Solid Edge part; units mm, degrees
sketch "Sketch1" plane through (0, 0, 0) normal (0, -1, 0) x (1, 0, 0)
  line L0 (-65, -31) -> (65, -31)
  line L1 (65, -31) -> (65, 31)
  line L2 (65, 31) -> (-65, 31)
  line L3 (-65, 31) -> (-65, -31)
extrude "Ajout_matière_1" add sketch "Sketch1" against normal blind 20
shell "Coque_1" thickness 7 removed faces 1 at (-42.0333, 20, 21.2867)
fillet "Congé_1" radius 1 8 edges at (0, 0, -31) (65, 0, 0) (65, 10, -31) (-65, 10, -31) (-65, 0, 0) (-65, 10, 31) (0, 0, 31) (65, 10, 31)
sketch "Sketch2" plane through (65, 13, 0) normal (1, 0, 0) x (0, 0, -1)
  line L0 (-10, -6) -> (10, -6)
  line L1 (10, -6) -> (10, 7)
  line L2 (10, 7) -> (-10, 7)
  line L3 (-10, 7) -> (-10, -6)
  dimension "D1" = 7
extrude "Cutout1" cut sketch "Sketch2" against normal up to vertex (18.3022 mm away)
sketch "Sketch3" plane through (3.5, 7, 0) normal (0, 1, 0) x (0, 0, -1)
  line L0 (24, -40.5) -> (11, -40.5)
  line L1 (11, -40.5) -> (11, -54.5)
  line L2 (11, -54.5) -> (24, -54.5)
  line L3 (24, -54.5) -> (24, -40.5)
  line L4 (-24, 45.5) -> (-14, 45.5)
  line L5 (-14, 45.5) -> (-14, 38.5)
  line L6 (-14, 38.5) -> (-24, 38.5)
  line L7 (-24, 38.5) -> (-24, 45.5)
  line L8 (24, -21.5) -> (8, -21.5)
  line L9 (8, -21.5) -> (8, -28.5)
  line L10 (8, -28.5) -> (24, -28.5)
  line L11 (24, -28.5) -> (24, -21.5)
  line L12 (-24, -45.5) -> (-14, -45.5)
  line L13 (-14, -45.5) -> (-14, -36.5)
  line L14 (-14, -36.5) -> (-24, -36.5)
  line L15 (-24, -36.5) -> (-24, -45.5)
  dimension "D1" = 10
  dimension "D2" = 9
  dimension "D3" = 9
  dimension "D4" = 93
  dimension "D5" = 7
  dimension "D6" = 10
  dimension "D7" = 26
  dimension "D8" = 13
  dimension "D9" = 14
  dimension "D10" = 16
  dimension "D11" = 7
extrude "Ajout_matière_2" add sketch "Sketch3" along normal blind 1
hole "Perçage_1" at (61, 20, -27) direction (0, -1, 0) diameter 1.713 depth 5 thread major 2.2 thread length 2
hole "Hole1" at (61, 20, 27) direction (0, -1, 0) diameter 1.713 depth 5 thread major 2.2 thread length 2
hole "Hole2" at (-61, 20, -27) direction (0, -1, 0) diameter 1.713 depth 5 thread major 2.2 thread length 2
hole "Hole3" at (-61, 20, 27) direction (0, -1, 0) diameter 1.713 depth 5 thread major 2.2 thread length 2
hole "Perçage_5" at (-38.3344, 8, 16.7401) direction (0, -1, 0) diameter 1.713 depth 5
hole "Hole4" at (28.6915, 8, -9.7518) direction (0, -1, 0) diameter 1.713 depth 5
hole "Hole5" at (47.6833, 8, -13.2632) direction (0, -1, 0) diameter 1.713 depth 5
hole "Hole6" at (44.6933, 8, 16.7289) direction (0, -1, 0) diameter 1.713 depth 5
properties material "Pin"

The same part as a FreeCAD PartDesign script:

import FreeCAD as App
import Part
import Sketcher
Q = App.Units.Quantity


def edges_at(feature, points):
    """Names of the edges that pass closest to the given points."""
    edges = feature.Shape.Edges
    near = lambda p: min(range(len(edges)), key=lambda i: edges[i].distToShape(Part.Vertex(*p))[0])
    return sorted({f"Edge{near(p) + 1}" for p in points})


def faces_at(feature, points):
    """Names of the faces that lie closest to the given points."""
    faces = feature.Shape.Faces
    near = lambda p: min(range(len(faces)), key=lambda i: faces[i].distToShape(Part.Vertex(*p))[0])
    return sorted({f"Face{near(p) + 1}" for p in points})

doc = App.newDocument("Part")
body = doc.addObject("PartDesign::Body", "Body")

# Sketch on XZ plane
sketch1 = body.newObject("Sketcher::SketchObject", "Sketch")
sketch1.AttachmentSupport = (doc.getObject("XZ_Plane"), [""])
sketch1.MapMode = "FlatFace"
sketch1.addGeometry(Part.LineSegment(App.Vector(-65, 31, 0), App.Vector(-65, -31, 0)), False)
sketch1.addGeometry(Part.LineSegment(App.Vector(-65, -31, 0), App.Vector(65, -31, 0)), False)
sketch1.addGeometry(Part.LineSegment(App.Vector(65, -31, 0), App.Vector(65, 31, 0)), False)
sketch1.addGeometry(Part.LineSegment(App.Vector(65, 31, 0), App.Vector(-65, 31, 0)), False)
sketch1.addConstraint(Sketcher.Constraint("Coincident", 0, 2, 1, 1))
sketch1.addConstraint(Sketcher.Constraint("Coincident", 1, 2, 2, 1))
sketch1.addConstraint(Sketcher.Constraint("Coincident", 2, 2, 3, 1))
sketch1.addConstraint(Sketcher.Constraint("Coincident", 3, 2, 0, 1))
sketch1.addConstraint(Sketcher.Constraint("Vertical", 0))
sketch1.addConstraint(Sketcher.Constraint("Horizontal", 1))
sketch1.addConstraint(Sketcher.Constraint("Vertical", 2))
sketch1.addConstraint(Sketcher.Constraint("Horizontal", 3))
sketch1.addConstraint(Sketcher.Constraint("Symmetric", 0, 2, 2, 2, -1, 1))
sketch1.addConstraint(Sketcher.Constraint("DistanceX", 1, 1, 1, 2, Q("130 mm")))
sketch1.addConstraint(Sketcher.Constraint("DistanceY", 0, 2, 0, 1, Q("62 mm")))
pad1 = body.newObject("PartDesign::Pad", "Pad")
pad1.Profile = sketch1
pad1.Length = 20
pad1.Reversed = True
doc.recompute()

thickness = body.newObject("PartDesign::Thickness", "Thickness")
thickness.Base = (pad1, faces_at(pad1, [(-42.033, 20, 21.287)]))
thickness.Value = 7
thickness.Reversed = True
thickness.Join = "Intersection"
doc.recompute()

fillet = body.newObject("PartDesign::Fillet", "Fillet")
fillet.Base = (thickness, edges_at(thickness, [
    (0, 0, -31),
    (65, 0, 0),
    (65, 10, -31),
    (-65, 10, -31),
    (-65, 0, 0),
    (-65, 10, 31),
    (0, 0, 31),
    (65, 10, 31),
]))
fillet.Radius = 1

# Sketch on YZ plane
sketch2 = body.newObject("Sketcher::SketchObject", "Sketch001")
sketch2.AttachmentSupport = (doc.getObject("YZ_Plane"), [""])
sketch2.MapMode = "FlatFace"
sketch2.AttachmentOffset = App.Placement(App.Vector(0, 0, 65), App.Rotation())
sketch2.addGeometry(Part.LineSegment(App.Vector(20, 10, 0), App.Vector(7, 10, 0)), False)
sketch2.addGeometry(Part.LineSegment(App.Vector(7, 10, 0), App.Vector(7, -10, 0)), False)
sketch2.addGeometry(Part.LineSegment(App.Vector(7, -10, 0), App.Vector(20, -10, 0)), False)
sketch2.addGeometry(Part.LineSegment(App.Vector(20, -10, 0), App.Vector(20, 10, 0)), False)
sketch2.addConstraint(Sketcher.Constraint("Coincident", 0, 2, 1, 1))
sketch2.addConstraint(Sketcher.Constraint("Coincident", 1, 2, 2, 1))
sketch2.addConstraint(Sketcher.Constraint("Coincident", 2, 2, 3, 1))
sketch2.addConstraint(Sketcher.Constraint("Coincident", 3, 2, 0, 1))
sketch2.addConstraint(Sketcher.Constraint("Horizontal", 0))
sketch2.addConstraint(Sketcher.Constraint("Vertical", 1))
sketch2.addConstraint(Sketcher.Constraint("Horizontal", 2))
sketch2.addConstraint(Sketcher.Constraint("Vertical", 3))
sketch2.addConstraint(Sketcher.Constraint("DistanceX", 0, 2, 0, 1, Q("13 mm")))
sketch2.addConstraint(Sketcher.Constraint("DistanceY", 1, 2, 1, 1, Q("20 mm")))
sketch2.addConstraint(Sketcher.Constraint("DistanceX", -1, 1, 0, 2, Q("7 mm")))
sketch2.addConstraint(Sketcher.Constraint("DistanceY", -1, 1, 0, 2, Q("10 mm")))
pocket1 = body.newObject("PartDesign::Pocket", "Pocket")
pocket1.Profile = sketch2
pocket1.Length = 18.3022

# Sketch on XZ plane
sketch3 = body.newObject("Sketcher::SketchObject", "Sketch002")
sketch3.AttachmentSupport = (doc.getObject("XZ_Plane"), [""])
sketch3.MapMode = "FlatFace"
sketch3.AttachmentOffset = App.Placement(App.Vector(0, 0, -7), App.Rotation())
sketch3.addGeometry(Part.LineSegment(App.Vector(58, -24, 0), App.Vector(44, -24, 0)), False)
sketch3.addGeometry(Part.LineSegment(App.Vector(44, -24, 0), App.Vector(44, -11, 0)), False)
sketch3.addGeometry(Part.LineSegment(App.Vector(44, -11, 0), App.Vector(58, -11, 0)), False)
sketch3.addGeometry(Part.LineSegment(App.Vector(58, -11, 0), App.Vector(58, -24, 0)), False)
sketch3.addGeometry(Part.LineSegment(App.Vector(-42, 14, 0), App.Vector(-42, 24, 0)), False)
sketch3.addGeometry(Part.LineSegment(App.Vector(-42, 24, 0), App.Vector(-35, 24, 0)), False)
sketch3.addGeometry(Part.LineSegment(App.Vector(-35, 24, 0), App.Vector(-35, 14, 0)), False)
sketch3.addGeometry(Part.LineSegment(App.Vector(-35, 14, 0), App.Vector(-42, 14, 0)), False)
sketch3.addGeometry(Part.LineSegment(App.Vector(32, -24, 0), App.Vector(25, -24, 0)), False)
sketch3.addGeometry(Part.LineSegment(App.Vector(25, -24, 0), App.Vector(25, -8, 0)), False)
sketch3.addGeometry(Part.LineSegment(App.Vector(25, -8, 0), App.Vector(32, -8, 0)), False)
sketch3.addGeometry(Part.LineSegment(App.Vector(32, -8, 0), App.Vector(32, -24, 0)), False)
sketch3.addGeometry(Part.LineSegment(App.Vector(40, 24, 0), App.Vector(49, 24, 0)), False)
sketch3.addGeometry(Part.LineSegment(App.Vector(49, 24, 0), App.Vector(49, 14, 0)), False)
sketch3.addGeometry(Part.LineSegment(App.Vector(49, 14, 0), App.Vector(40, 14, 0)), False)
sketch3.addGeometry(Part.LineSegment(App.Vector(40, 14, 0), App.Vector(40, 24, 0)), False)
sketch3.addConstraint(Sketcher.Constraint("Coincident", 0, 2, 1, 1))
sketch3.addConstraint(Sketcher.Constraint("Coincident", 1, 2, 2, 1))
sketch3.addConstraint(Sketcher.Constraint("Coincident", 2, 2, 3, 1))
sketch3.addConstraint(Sketcher.Constraint("Coincident", 3, 2, 0, 1))
sketch3.addConstraint(Sketcher.Constraint("Coincident", 4, 2, 5, 1))
sketch3.addConstraint(Sketcher.Constraint("Coincident", 5, 2, 6, 1))
sketch3.addConstraint(Sketcher.Constraint("Coincident", 6, 2, 7, 1))
sketch3.addConstraint(Sketcher.Constraint("Coincident", 7, 2, 4, 1))
sketch3.addConstraint(Sketcher.Constraint("Coincident", 8, 2, 9, 1))
sketch3.addConstraint(Sketcher.Constraint("Coincident", 9, 2, 10, 1))
sketch3.addConstraint(Sketcher.Constraint("Coincident", 10, 2, 11, 1))
sketch3.addConstraint(Sketcher.Constraint("Coincident", 11, 2, 8, 1))
sketch3.addConstraint(Sketcher.Constraint("Coincident", 12, 2, 13, 1))
sketch3.addConstraint(Sketcher.Constraint("Coincident", 13, 2, 14, 1))
sketch3.addConstraint(Sketcher.Constraint("Coincident", 14, 2, 15, 1))
sketch3.addConstraint(Sketcher.Constraint("Coincident", 15, 2, 12, 1))
sketch3.addConstraint(Sketcher.Constraint("Horizontal", 0))
sketch3.addConstraint(Sketcher.Constraint("Vertical", 1))
sketch3.addConstraint(Sketcher.Constraint("Horizontal", 2))
sketch3.addConstraint(Sketcher.Constraint("Vertical", 3))
sketch3.addConstraint(Sketcher.Constraint("Vertical", 4))
sketch3.addConstraint(Sketcher.Constraint("Horizontal", 5))
sketch3.addConstraint(Sketcher.Constraint("Vertical", 6))
sketch3.addConstraint(Sketcher.Constraint("Horizontal", 7))
sketch3.addConstraint(Sketcher.Constraint("Horizontal", 8))
sketch3.addConstraint(Sketcher.Constraint("Vertical", 9))
sketch3.addConstraint(Sketcher.Constraint("Horizontal", 10))
sketch3.addConstraint(Sketcher.Constraint("Vertical", 11))
sketch3.addConstraint(Sketcher.Constraint("Horizontal", 12))
sketch3.addConstraint(Sketcher.Constraint("Vertical", 13))
sketch3.addConstraint(Sketcher.Constraint("Horizontal", 14))
sketch3.addConstraint(Sketcher.Constraint("Vertical", 15))
sketch3.addConstraint(Sketcher.Constraint("Horizontal", 3, 2, 8, 2))
sketch3.addConstraint(Sketcher.Constraint("Horizontal", 5, 2, 12, 2))
sketch3.addConstraint(Sketcher.Constraint("Horizontal", 7, 2, 13, 2))
sketch3.addConstraint(Sketcher.Constraint("Equal", 7, 8))
sketch3.addConstraint(Sketcher.Constraint("DistanceX", 0, 2, 0, 1, Q("14 mm")))
sketch3.addConstraint(Sketcher.Constraint("DistanceY", 0, 2, -1, 1, Q("24 mm")))
sketch3.addConstraint(Sketcher.Constraint("DistanceY", 1, 2, -1, 1, Q("11 mm")))
sketch3.addConstraint(Sketcher.Constraint("DistanceY", -1, 1, 4, 2, Q("24 mm")))
sketch3.addConstraint(Sketcher.Constraint("DistanceY", -1, 1, 6, 2, Q("14 mm")))
sketch3.addConstraint(Sketcher.Constraint("DistanceY", 9, 2, -1, 1, Q("8 mm")))
sketch3.addConstraint(Sketcher.Constraint("DistanceX", 9, 2, 12, 2, Q("24 mm")))
sketch3.addConstraint(Sketcher.Constraint("DistanceX", 10, 2, 14, 2, Q("8 mm")))
sketch3.addConstraint(Sketcher.Constraint("DistanceX", 5, 1, 5, 2, Q("7 mm")))
sketch3.addConstraint(Sketcher.Constraint("DistanceX", -1, 1, 0, 2, Q("44 mm")))
sketch3.addConstraint(Sketcher.Constraint("DistanceX", 4, 2, -1, 1, Q("42 mm")))
sketch3.addConstraint(Sketcher.Constraint("DistanceX", -1, 1, 8, 2, Q("25 mm")))
pad2 = body.newObject("PartDesign::Pad", "Pad001")
pad2.Profile = sketch3
pad2.Length = 1
pad2.Reversed = True

# Sketch on XZ plane
sketch4 = body.newObject("Sketcher::SketchObject", "Sketch003")
sketch4.AttachmentSupport = (doc.getObject("XZ_Plane"), [""])
sketch4.MapMode = "FlatFace"
sketch4.AttachmentOffset = App.Placement(App.Vector(0, 0, -20), App.Rotation())
sketch4.addGeometry(Part.Circle(App.Vector(61, -27, 0), App.Vector(0, 0, 1), 0.9), False)
sketch4.addConstraint(Sketcher.Constraint("Diameter", 0, Q("1.713 mm")))
sketch4.addConstraint(Sketcher.Constraint("DistanceX", -1, 1, 0, 3, Q("61 mm")))
sketch4.addConstraint(Sketcher.Constraint("DistanceY", 0, 3, -1, 1, Q("27 mm")))
doc.recompute()
hole = body.newObject("PartDesign::Hole", "Hole")
hole.Profile = sketch4
hole.ThreadType = "None"
hole.Diameter = 1.713
hole.DepthType = "Dimension"
hole.Depth = 5
hole.DrillPoint = "Flat"
hole.Reversed = True

# Sketch on XZ plane
sketch5 = body.newObject("Sketcher::SketchObject", "Sketch004")
sketch5.AttachmentSupport = (doc.getObject("XZ_Plane"), [""])
sketch5.MapMode = "FlatFace"
sketch5.AttachmentOffset = App.Placement(App.Vector(0, 0, -20), App.Rotation())
sketch5.addGeometry(Part.Circle(App.Vector(61, 27, 0), App.Vector(0, 0, 1), 0.9), False)
sketch5.addConstraint(Sketcher.Constraint("Diameter", 0, Q("1.713 mm")))
sketch5.addConstraint(Sketcher.Constraint("DistanceX", -1, 1, 0, 3, Q("61 mm")))
sketch5.addConstraint(Sketcher.Constraint("DistanceY", -1, 1, 0, 3, Q("27 mm")))
doc.recompute()
hole2 = body.newObject("PartDesign::Hole", "Hole001")
hole2.Profile = sketch5
hole2.ThreadType = "None"
hole2.Diameter = 1.713
hole2.DepthType = "Dimension"
hole2.Depth = 5
hole2.DrillPoint = "Flat"
hole2.Reversed = True

# Sketch on XZ plane
sketch6 = body.newObject("Sketcher::SketchObject", "Sketch005")
sketch6.AttachmentSupport = (doc.getObject("XZ_Plane"), [""])
sketch6.MapMode = "FlatFace"
sketch6.AttachmentOffset = App.Placement(App.Vector(0, 0, -20), App.Rotation())
sketch6.addGeometry(Part.Circle(App.Vector(-61, -27, 0), App.Vector(0, 0, 1), 0.9), False)
sketch6.addConstraint(Sketcher.Constraint("Diameter", 0, Q("1.713 mm")))
sketch6.addConstraint(Sketcher.Constraint("DistanceX", 0, 3, -1, 1, Q("61 mm")))
sketch6.addConstraint(Sketcher.Constraint("DistanceY", 0, 3, -1, 1, Q("27 mm")))
doc.recompute()
hole3 = body.newObject("PartDesign::Hole", "Hole002")
hole3.Profile = sketch6
hole3.ThreadType = "None"
hole3.Diameter = 1.713
hole3.DepthType = "Dimension"
hole3.Depth = 5
hole3.DrillPoint = "Flat"
hole3.Reversed = True

# Sketch on XZ plane
sketch7 = body.newObject("Sketcher::SketchObject", "Sketch006")
sketch7.AttachmentSupport = (doc.getObject("XZ_Plane"), [""])
sketch7.MapMode = "FlatFace"
sketch7.AttachmentOffset = App.Placement(App.Vector(0, 0, -20), App.Rotation())
sketch7.addGeometry(Part.Circle(App.Vector(-61, 27, 0), App.Vector(0, 0, 1), 0.9), False)
sketch7.addConstraint(Sketcher.Constraint("Diameter", 0, Q("1.713 mm")))
sketch7.addConstraint(Sketcher.Constraint("DistanceX", 0, 3, -1, 1, Q("61 mm")))
sketch7.addConstraint(Sketcher.Constraint("DistanceY", -1, 1, 0, 3, Q("27 mm")))
doc.recompute()
hole4 = body.newObject("PartDesign::Hole", "Hole003")
hole4.Profile = sketch7
hole4.ThreadType = "None"
hole4.Diameter = 1.713
hole4.DepthType = "Dimension"
hole4.Depth = 5
hole4.DrillPoint = "Flat"
hole4.Reversed = True

# Sketch on XZ plane
sketch8 = body.newObject("Sketcher::SketchObject", "Sketch007")
sketch8.AttachmentSupport = (doc.getObject("XZ_Plane"), [""])
sketch8.MapMode = "FlatFace"
sketch8.AttachmentOffset = App.Placement(App.Vector(0, 0, -8), App.Rotation())
sketch8.addGeometry(Part.Circle(App.Vector(-38.3, 16.7, 0), App.Vector(0, 0, 1), 0.9), False)
sketch8.addConstraint(Sketcher.Constraint("Diameter", 0, Q("1.713 mm")))
sketch8.addConstraint(Sketcher.Constraint("DistanceY", -1, 1, 0, 3, Q("16.74 mm")))
sketch8.addConstraint(Sketcher.Constraint("DistanceX", 0, 3, -1, 1, Q("38.3344 mm")))
doc.recompute()
hole5 = body.newObject("PartDesign::Hole", "Hole004")
hole5.Profile = sketch8
hole5.ThreadType = "None"
hole5.Diameter = 1.713
hole5.DepthType = "Dimension"
hole5.Depth = 5
hole5.DrillPoint = "Flat"
hole5.Reversed = True

# Sketch on XZ plane
sketch9 = body.newObject("Sketcher::SketchObject", "Sketch008")
sketch9.AttachmentSupport = (doc.getObject("XZ_Plane"), [""])
sketch9.MapMode = "FlatFace"
sketch9.AttachmentOffset = App.Placement(App.Vector(0, 0, -8), App.Rotation())
sketch9.addGeometry(Part.Circle(App.Vector(28.7, -9.8, 0), App.Vector(0, 0, 1), 0.9), False)
sketch9.addConstraint(Sketcher.Constraint("Diameter", 0, Q("1.713 mm")))
sketch9.addConstraint(Sketcher.Constraint("DistanceX", -1, 1, 0, 3, Q("28.6915 mm")))
sketch9.addConstraint(Sketcher.Constraint("DistanceY", 0, 3, -1, 1, Q("9.7518 mm")))
doc.recompute()
hole6 = body.newObject("PartDesign::Hole", "Hole005")
hole6.Profile = sketch9
hole6.ThreadType = "None"
hole6.Diameter = 1.713
hole6.DepthType = "Dimension"
hole6.Depth = 5
hole6.DrillPoint = "Flat"
hole6.Reversed = True

# Sketch on XZ plane
sketch10 = body.newObject("Sketcher::SketchObject", "Sketch009")
sketch10.AttachmentSupport = (doc.getObject("XZ_Plane"), [""])
sketch10.MapMode = "FlatFace"
sketch10.AttachmentOffset = App.Placement(App.Vector(0, 0, -8), App.Rotation())
sketch10.addGeometry(Part.Circle(App.Vector(47.7, -13.3, 0), App.Vector(0, 0, 1), 0.9), False)
sketch10.addConstraint(Sketcher.Constraint("Diameter", 0, Q("1.713 mm")))
sketch10.addConstraint(Sketcher.Constraint("DistanceX", -1, 1, 0, 3, Q("47.6833 mm")))
sketch10.addConstraint(Sketcher.Constraint("DistanceY", 0, 3, -1, 1, Q("13.2632 mm")))
doc.recompute()
hole7 = body.newObject("PartDesign::Hole", "Hole006")
hole7.Profile = sketch10
hole7.ThreadType = "None"
hole7.Diameter = 1.713
hole7.DepthType = "Dimension"
hole7.Depth = 5
hole7.DrillPoint = "Flat"
hole7.Reversed = True

# Sketch on XZ plane
sketch11 = body.newObject("Sketcher::SketchObject", "Sketch010")
sketch11.AttachmentSupport = (doc.getObject("XZ_Plane"), [""])
sketch11.MapMode = "FlatFace"
sketch11.AttachmentOffset = App.Placement(App.Vector(0, 0, -8), App.Rotation())
sketch11.addGeometry(Part.Circle(App.Vector(44.7, 16.7, 0), App.Vector(0, 0, 1), 0.9), False)
sketch11.addConstraint(Sketcher.Constraint("Diameter", 0, Q("1.713 mm")))
sketch11.addConstraint(Sketcher.Constraint("DistanceY", -1, 1, 0, 3, Q("16.729 mm")))
sketch11.addConstraint(Sketcher.Constraint("DistanceX", -1, 1, 0, 3, Q("44.6933 mm")))
doc.recompute()
hole8 = body.newObject("PartDesign::Hole", "Hole007")
hole8.Profile = sketch11
hole8.ThreadType = "None"
hole8.Diameter = 1.713
hole8.DepthType = "Dimension"
hole8.Depth = 5
hole8.DrillPoint = "Flat"
hole8.Reversed = True

doc.recompute()
